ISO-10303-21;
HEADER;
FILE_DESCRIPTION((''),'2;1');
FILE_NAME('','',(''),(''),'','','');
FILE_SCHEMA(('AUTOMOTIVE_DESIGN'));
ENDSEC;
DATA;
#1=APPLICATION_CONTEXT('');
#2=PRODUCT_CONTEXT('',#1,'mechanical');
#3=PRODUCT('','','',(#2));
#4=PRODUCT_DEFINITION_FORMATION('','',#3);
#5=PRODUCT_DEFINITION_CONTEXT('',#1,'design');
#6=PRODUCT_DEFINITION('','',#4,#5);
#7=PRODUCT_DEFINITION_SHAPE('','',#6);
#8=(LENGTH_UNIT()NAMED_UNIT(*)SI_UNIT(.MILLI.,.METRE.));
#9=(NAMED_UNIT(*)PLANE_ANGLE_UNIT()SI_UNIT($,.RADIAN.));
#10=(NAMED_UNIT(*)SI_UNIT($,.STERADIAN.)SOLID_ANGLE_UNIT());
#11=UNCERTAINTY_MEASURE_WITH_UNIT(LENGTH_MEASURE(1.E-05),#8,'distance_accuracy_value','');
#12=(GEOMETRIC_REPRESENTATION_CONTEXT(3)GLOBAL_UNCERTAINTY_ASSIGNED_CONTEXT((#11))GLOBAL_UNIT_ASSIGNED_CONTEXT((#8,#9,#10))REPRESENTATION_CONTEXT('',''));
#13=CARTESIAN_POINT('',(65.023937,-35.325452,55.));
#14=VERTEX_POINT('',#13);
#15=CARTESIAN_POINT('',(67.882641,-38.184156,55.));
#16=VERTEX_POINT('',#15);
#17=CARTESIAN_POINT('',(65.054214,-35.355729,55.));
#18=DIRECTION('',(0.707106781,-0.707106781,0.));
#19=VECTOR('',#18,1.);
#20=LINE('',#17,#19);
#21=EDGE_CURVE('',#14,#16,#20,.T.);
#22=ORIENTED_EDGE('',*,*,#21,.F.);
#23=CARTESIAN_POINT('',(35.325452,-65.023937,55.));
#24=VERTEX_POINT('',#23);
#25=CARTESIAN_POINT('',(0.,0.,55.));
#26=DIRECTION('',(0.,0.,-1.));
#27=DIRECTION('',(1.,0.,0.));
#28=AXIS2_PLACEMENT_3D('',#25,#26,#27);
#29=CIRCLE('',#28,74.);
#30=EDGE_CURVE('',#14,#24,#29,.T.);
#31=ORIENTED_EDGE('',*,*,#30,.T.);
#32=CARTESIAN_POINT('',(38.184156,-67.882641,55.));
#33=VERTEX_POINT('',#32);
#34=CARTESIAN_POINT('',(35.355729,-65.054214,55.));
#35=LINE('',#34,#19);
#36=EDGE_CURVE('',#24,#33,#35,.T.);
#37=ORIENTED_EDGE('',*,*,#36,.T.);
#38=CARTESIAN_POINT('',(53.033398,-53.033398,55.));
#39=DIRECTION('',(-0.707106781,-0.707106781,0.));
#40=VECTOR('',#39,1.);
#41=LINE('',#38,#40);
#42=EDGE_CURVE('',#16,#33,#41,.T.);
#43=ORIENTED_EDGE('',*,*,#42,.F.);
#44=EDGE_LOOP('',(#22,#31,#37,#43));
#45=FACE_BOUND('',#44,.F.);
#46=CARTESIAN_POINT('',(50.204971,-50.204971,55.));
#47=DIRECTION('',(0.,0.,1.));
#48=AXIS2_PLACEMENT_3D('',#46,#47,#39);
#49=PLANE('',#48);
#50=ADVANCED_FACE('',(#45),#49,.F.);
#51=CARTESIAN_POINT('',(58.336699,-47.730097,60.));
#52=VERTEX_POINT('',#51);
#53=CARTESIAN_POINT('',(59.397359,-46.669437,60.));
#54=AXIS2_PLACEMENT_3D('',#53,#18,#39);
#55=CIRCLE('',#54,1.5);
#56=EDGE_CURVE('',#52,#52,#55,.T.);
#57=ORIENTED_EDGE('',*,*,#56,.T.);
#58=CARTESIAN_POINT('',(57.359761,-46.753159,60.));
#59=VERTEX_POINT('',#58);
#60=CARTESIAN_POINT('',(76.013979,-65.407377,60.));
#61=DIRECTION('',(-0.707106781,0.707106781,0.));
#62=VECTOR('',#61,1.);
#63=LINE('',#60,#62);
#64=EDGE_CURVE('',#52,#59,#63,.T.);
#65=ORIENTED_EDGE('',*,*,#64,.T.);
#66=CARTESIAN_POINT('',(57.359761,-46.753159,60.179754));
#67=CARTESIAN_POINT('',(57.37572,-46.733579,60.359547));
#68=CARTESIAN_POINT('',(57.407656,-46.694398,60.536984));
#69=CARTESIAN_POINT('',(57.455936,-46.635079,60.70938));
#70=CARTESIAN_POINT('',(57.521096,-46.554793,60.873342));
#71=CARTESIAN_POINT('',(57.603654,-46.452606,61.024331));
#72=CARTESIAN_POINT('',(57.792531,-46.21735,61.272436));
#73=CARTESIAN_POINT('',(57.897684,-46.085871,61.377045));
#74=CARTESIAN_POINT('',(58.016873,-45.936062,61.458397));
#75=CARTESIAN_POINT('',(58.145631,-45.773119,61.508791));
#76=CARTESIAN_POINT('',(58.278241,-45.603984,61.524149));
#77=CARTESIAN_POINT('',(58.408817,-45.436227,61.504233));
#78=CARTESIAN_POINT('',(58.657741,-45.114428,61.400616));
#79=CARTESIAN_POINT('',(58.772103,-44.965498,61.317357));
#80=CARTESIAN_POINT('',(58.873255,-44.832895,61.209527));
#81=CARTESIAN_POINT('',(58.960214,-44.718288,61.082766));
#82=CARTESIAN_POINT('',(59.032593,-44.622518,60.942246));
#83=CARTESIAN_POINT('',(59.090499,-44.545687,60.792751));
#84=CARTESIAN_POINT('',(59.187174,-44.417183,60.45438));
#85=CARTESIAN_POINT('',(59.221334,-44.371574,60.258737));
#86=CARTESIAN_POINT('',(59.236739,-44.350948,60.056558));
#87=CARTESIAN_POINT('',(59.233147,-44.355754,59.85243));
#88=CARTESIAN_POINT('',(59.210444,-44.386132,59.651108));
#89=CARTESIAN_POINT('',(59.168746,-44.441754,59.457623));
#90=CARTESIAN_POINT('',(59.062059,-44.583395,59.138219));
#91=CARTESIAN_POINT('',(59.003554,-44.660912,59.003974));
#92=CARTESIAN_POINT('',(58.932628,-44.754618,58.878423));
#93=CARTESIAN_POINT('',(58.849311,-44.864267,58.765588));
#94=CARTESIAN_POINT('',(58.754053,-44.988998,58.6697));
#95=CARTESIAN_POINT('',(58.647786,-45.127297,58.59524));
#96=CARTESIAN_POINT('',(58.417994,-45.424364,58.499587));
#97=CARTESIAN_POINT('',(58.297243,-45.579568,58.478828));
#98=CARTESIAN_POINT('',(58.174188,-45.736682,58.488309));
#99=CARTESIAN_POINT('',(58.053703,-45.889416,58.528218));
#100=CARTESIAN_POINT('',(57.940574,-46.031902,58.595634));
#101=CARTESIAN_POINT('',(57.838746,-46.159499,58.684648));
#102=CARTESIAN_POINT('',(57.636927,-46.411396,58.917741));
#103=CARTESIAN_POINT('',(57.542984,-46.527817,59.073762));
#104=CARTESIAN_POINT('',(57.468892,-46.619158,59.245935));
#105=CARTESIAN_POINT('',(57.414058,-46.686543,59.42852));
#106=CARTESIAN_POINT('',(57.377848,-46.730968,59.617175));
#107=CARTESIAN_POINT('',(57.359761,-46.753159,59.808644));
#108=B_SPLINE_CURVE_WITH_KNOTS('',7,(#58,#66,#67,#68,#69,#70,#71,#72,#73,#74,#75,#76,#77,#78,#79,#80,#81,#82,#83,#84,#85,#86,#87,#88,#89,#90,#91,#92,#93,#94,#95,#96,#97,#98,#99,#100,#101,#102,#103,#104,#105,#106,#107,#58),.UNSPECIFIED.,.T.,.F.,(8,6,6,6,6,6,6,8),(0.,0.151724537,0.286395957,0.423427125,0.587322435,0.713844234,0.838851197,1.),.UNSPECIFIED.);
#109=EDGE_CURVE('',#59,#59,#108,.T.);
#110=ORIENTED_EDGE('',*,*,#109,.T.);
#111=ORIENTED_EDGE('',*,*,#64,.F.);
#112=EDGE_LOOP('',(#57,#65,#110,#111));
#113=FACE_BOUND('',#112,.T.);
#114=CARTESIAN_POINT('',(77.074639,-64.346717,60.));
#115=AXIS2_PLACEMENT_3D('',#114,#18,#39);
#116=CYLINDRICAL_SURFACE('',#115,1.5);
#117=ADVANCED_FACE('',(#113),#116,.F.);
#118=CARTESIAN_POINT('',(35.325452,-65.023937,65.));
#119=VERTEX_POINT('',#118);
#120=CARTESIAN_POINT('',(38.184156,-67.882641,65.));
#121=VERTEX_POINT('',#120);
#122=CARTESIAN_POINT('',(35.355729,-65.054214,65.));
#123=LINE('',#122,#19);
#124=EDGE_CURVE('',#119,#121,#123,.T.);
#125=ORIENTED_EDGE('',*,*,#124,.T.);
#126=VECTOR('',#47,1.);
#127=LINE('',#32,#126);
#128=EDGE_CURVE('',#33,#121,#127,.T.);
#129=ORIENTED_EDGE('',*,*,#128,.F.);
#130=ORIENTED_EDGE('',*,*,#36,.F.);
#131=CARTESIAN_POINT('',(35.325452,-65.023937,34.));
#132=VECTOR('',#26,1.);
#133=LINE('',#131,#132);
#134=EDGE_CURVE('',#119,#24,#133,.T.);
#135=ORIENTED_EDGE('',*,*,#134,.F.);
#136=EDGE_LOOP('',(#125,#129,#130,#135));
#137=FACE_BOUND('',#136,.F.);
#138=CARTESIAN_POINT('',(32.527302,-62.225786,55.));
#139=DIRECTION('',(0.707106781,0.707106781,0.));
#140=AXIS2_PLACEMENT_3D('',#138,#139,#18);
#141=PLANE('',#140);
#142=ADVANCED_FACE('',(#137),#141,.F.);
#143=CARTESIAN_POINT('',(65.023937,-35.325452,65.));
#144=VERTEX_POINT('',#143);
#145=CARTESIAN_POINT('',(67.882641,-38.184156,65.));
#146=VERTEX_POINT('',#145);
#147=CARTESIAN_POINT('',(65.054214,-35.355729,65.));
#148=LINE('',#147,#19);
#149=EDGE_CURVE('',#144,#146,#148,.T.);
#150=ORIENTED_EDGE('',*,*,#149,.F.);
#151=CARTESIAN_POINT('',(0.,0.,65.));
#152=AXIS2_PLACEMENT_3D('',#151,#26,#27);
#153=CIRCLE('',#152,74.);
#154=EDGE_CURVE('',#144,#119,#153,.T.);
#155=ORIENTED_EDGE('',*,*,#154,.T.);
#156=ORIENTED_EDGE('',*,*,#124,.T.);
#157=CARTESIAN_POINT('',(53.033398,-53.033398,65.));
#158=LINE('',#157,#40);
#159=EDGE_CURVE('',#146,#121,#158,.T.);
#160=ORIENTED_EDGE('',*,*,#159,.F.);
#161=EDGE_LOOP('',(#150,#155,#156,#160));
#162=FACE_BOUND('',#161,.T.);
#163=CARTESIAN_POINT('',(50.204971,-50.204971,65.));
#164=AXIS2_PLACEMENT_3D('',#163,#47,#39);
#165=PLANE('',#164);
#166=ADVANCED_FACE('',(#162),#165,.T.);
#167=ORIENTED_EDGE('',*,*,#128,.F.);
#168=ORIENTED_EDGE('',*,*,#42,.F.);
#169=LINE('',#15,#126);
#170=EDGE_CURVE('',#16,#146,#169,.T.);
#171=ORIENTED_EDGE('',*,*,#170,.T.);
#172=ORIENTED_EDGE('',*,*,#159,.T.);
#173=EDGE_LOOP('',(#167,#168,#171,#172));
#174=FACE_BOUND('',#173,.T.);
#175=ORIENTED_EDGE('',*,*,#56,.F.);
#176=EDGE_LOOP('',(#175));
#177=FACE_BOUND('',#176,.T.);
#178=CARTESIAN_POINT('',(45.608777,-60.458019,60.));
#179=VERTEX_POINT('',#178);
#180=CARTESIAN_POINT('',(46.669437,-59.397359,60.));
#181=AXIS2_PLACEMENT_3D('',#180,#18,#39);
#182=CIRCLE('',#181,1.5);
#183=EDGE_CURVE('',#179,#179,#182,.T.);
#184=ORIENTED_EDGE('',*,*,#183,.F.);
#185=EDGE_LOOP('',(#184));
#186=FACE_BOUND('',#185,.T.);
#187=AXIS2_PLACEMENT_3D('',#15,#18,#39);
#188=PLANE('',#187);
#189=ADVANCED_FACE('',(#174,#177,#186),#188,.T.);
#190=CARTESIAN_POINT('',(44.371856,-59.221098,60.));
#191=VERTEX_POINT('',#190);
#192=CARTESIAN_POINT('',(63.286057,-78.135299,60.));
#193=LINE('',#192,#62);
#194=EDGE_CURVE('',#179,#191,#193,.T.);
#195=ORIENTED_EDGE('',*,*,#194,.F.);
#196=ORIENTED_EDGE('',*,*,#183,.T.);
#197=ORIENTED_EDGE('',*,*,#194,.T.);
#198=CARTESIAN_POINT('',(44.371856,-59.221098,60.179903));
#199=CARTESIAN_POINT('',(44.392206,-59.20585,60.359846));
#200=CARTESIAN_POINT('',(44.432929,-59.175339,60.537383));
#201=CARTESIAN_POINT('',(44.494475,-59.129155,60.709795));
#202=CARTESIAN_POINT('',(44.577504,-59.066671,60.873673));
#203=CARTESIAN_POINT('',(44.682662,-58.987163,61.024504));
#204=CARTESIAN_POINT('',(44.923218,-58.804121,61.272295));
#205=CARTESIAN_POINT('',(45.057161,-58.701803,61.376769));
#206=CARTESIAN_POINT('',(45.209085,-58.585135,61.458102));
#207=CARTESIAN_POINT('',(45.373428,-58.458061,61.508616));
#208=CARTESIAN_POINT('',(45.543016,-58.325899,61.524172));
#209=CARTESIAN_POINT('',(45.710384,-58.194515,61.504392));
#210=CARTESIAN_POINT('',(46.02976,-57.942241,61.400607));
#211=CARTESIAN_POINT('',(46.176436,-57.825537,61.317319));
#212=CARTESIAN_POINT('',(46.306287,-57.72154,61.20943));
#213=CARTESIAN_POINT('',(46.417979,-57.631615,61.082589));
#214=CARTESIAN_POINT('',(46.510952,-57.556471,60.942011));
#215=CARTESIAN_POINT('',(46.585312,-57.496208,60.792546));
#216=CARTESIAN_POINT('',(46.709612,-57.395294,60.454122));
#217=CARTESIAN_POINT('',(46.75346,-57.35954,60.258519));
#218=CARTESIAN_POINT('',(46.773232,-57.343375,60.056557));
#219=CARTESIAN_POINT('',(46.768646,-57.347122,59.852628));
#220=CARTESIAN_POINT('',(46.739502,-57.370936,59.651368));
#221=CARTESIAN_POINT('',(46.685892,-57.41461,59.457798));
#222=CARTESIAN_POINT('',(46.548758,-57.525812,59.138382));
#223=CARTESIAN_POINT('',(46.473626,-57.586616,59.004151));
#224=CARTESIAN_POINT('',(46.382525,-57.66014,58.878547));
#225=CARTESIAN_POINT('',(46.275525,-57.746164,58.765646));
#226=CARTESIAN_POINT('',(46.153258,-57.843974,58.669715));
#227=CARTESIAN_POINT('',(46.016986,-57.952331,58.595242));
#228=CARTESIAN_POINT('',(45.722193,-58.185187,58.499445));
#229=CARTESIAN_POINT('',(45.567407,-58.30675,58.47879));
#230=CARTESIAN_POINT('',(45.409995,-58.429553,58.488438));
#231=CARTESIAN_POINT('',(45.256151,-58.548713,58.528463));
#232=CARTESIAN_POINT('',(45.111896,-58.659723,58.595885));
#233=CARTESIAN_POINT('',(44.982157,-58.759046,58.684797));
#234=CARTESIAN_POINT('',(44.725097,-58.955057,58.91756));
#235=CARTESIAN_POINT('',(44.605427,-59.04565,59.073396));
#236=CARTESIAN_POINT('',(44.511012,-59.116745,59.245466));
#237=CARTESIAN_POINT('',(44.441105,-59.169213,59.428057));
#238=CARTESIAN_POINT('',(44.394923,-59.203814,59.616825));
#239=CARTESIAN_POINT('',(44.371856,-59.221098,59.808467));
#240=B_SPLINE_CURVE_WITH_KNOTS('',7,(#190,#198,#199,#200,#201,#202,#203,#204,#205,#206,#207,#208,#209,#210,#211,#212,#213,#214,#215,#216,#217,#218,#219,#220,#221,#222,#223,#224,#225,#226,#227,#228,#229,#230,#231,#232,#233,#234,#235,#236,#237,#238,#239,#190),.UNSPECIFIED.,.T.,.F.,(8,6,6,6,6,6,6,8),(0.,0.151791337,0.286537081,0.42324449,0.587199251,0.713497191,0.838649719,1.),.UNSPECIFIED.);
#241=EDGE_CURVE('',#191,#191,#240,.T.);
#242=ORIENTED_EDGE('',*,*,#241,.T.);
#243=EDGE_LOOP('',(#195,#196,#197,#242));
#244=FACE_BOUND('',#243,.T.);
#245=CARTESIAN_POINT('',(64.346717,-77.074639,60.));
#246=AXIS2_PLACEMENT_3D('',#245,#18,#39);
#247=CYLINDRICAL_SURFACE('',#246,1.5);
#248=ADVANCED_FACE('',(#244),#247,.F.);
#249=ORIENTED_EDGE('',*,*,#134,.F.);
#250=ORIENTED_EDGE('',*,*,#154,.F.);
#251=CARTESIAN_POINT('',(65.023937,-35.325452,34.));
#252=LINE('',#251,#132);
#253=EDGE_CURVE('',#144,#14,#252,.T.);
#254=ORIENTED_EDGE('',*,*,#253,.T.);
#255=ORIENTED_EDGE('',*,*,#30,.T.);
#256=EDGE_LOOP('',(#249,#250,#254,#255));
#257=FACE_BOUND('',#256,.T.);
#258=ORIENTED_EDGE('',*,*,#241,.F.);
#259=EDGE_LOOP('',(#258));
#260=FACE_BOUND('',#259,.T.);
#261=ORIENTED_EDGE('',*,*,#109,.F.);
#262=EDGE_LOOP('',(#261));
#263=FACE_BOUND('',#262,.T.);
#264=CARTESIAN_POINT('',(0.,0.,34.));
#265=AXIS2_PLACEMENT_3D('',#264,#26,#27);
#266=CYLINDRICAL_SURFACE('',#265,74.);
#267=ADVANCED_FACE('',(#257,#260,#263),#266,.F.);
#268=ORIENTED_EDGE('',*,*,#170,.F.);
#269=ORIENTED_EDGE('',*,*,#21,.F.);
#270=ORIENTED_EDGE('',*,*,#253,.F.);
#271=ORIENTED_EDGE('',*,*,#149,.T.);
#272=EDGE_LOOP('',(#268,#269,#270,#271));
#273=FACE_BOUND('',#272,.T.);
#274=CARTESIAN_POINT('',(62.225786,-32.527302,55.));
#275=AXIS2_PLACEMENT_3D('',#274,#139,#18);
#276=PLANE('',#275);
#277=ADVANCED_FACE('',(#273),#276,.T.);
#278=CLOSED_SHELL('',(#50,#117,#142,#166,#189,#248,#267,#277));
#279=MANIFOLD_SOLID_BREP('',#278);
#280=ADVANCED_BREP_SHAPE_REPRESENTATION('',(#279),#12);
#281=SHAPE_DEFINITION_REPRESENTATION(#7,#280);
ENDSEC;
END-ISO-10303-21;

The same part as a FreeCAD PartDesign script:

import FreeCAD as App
import Part
import Sketcher
Q = App.Units.Quantity

doc = App.newDocument("Part")
body = doc.addObject("PartDesign::Body", "Body")

# Sketch on XZ plane
sketch1 = body.newObject("Sketcher::SketchObject", "Sketch")
sketch1.AttachmentSupport = (doc.getObject("XZ_Plane"), [""])
sketch1.MapMode = "FlatFace"
sketch1.AttachmentOffset = App.Placement(App.Vector(0, 0, -100), App.Rotation())
sketch1.addGeometry(Part.Circle(App.Vector(9, 59, 0), App.Vector(0, 0, 1), 1.5), False)
sketch1.addConstraint([
    Sketcher.Constraint("Diameter", 0, Q("3 mm")),
    Sketcher.Constraint("DistanceX", -1, 1, 0, 3, Q("9 mm")),
    Sketcher.Constraint("DistanceY", -1, 1, 0, 3, Q("59 mm")),
])
pad1 = body.newObject("PartDesign::Pad", "Pad")
pad1.Profile = sketch1
pad1.Length = 50
body2 = doc.addObject("PartDesign::Body", "Body001")
doc.recompute()

body.Placement = App.Placement(App.Vector(0, 0, 0), App.Rotation(App.Vector(0, 0, 1), 225))
boolean = body2.newObject("PartDesign::Boolean", "Boolean")
boolean.Type = "Fuse"
boolean.addObjects([body])
body3 = doc.addObject("PartDesign::Body", "Body002")

# Sketch on XZ plane
sketch2 = body3.newObject("Sketcher::SketchObject", "Sketch001")
sketch2.AttachmentSupport = (doc.getObject("XZ_Plane002"), [""])
sketch2.MapMode = "FlatFace"
sketch2.AttachmentOffset = App.Placement(App.Vector(0, 0, -100), App.Rotation())
sketch2.addGeometry(Part.Circle(App.Vector(-9, 59, 0), App.Vector(0, 0, 1), 1.5), False)
sketch2.addConstraint([
    Sketcher.Constraint("Diameter", 0, Q("3 mm")),
    Sketcher.Constraint("DistanceX", 0, 3, -1, 1, Q("9 mm")),
    Sketcher.Constraint("DistanceY", -1, 1, 0, 3, Q("59 mm")),
])
pad2 = body3.newObject("PartDesign::Pad", "Pad001")
pad2.Profile = sketch2
pad2.Length = 50
body4 = doc.addObject("PartDesign::Body", "Body003")
body4.AllowCompound = True
doc.recompute()

body3.Placement = App.Placement(App.Vector(0, 0, 0), App.Rotation(App.Vector(0, 0, 1), 225))
boolean2 = body4.newObject("PartDesign::Boolean", "Boolean001")
boolean2.Type = "Fuse"
boolean2.addObjects([body3])
doc.recompute()

boolean3 = body4.newObject("PartDesign::Boolean", "Boolean002")
boolean3.Type = "Fuse"
boolean3.addObjects([body2])
body5 = doc.addObject("PartDesign::Body", "Body004")
body5.AllowCompound = True
doc.recompute()

body4.Placement = App.Placement(App.Vector(0, 0, 1), App.Rotation(App.Vector(0, 0, 1), 0))
boolean4 = body5.newObject("PartDesign::Boolean", "Boolean003")
boolean4.Type = "Fuse"
boolean4.addObjects([body4])
body6 = doc.addObject("PartDesign::Body", "Body005")

# Sketch on XY plane
sketch3 = body6.newObject("Sketcher::SketchObject", "Sketch002")
sketch3.AttachmentSupport = (doc.getObject("XY_Plane005"), [""])
sketch3.MapMode = "FlatFace"
sketch3.AttachmentOffset = App.Placement(App.Vector(0, 0, 44), App.Rotation())
sketch3.addGeometry(Part.Circle(App.Vector(0, 0, 0), App.Vector(0, 0, 1), 74), False)
sketch3.addConstraint([
    Sketcher.Constraint("Coincident", 0, 3, -1, 1),
    Sketcher.Constraint("Diameter", 0, Q("148 mm")),
])
pad3 = body6.newObject("PartDesign::Pad", "Pad002")
pad3.Profile = sketch3
pad3.Length = 40
body7 = doc.addObject("PartDesign::Body", "Body006")

# Sketch on XY plane
sketch4 = body7.newObject("Sketcher::SketchObject", "Sketch003")
sketch4.AttachmentSupport = (doc.getObject("XY_Plane006"), [""])
sketch4.MapMode = "FlatFace"
sketch4.AttachmentOffset = App.Placement(App.Vector(0, 0, 22), App.Rotation())
sketch4.addGeometry([
    Part.LineSegment(App.Vector(-21, -15, 0), App.Vector(-21, -23, 0)),
    Part.LineSegment(App.Vector(-21, -23, 0), App.Vector(21, -23, 0)),
    Part.LineSegment(App.Vector(21, -23, 0), App.Vector(21, -15, 0)),
    Part.LineSegment(App.Vector(21, -15, 0), App.Vector(-21, -15, 0)),
], False)
sketch4.addConstraint([
    Sketcher.Constraint("Coincident", 0, 2, 1, 1),
    Sketcher.Constraint("Coincident", 1, 2, 2, 1),
    Sketcher.Constraint("Coincident", 2, 2, 3, 1),
    Sketcher.Constraint("Coincident", 3, 2, 0, 1),
    Sketcher.Constraint("Vertical", 0),
    Sketcher.Constraint("Horizontal", 1),
    Sketcher.Constraint("Vertical", 2),
    Sketcher.Constraint("Horizontal", 3),
    Sketcher.Constraint("DistanceX", 1, 1, 1, 2, Q("42 mm")),
    Sketcher.Constraint("DistanceY", 0, 2, 0, 1, Q("8 mm")),
    Sketcher.Constraint("DistanceX", 0, 2, -1, 1, Q("21 mm")),
    Sketcher.Constraint("DistanceY", 0, 2, -1, 1, Q("23 mm")),
])
pad4 = body7.newObject("PartDesign::Pad", "Pad003")
pad4.Profile = sketch4
pad4.Length = 10
body8 = doc.addObject("PartDesign::Body", "Body007")
doc.recompute()

body7.Placement = App.Placement(App.Vector(63.64, -63.64, 43), App.Rotation(App.Vector(0, 0, 1), 225))
boolean5 = body8.newObject("PartDesign::Boolean", "Boolean004")
boolean5.Type = "Fuse"
boolean5.addObjects([body7])
doc.recompute()

boolean6 = body8.newObject("PartDesign::Boolean", "Boolean005")
boolean6.Type = "Cut"
boolean6.addObjects([body6])
body9 = doc.addObject("PartDesign::Body", "Body008")
doc.recompute()

body8.Placement = App.Placement(App.Vector(0, 0, -10), App.Rotation(App.Vector(0, 0, 1), 0))
boolean7 = body9.newObject("PartDesign::Boolean", "Boolean006")
boolean7.Type = "Fuse"
boolean7.addObjects([body8])
doc.recompute()

boolean8 = body9.newObject("PartDesign::Boolean", "Boolean007")
boolean8.Type = "Cut"
boolean8.addObjects([body5])

doc.recompute()
